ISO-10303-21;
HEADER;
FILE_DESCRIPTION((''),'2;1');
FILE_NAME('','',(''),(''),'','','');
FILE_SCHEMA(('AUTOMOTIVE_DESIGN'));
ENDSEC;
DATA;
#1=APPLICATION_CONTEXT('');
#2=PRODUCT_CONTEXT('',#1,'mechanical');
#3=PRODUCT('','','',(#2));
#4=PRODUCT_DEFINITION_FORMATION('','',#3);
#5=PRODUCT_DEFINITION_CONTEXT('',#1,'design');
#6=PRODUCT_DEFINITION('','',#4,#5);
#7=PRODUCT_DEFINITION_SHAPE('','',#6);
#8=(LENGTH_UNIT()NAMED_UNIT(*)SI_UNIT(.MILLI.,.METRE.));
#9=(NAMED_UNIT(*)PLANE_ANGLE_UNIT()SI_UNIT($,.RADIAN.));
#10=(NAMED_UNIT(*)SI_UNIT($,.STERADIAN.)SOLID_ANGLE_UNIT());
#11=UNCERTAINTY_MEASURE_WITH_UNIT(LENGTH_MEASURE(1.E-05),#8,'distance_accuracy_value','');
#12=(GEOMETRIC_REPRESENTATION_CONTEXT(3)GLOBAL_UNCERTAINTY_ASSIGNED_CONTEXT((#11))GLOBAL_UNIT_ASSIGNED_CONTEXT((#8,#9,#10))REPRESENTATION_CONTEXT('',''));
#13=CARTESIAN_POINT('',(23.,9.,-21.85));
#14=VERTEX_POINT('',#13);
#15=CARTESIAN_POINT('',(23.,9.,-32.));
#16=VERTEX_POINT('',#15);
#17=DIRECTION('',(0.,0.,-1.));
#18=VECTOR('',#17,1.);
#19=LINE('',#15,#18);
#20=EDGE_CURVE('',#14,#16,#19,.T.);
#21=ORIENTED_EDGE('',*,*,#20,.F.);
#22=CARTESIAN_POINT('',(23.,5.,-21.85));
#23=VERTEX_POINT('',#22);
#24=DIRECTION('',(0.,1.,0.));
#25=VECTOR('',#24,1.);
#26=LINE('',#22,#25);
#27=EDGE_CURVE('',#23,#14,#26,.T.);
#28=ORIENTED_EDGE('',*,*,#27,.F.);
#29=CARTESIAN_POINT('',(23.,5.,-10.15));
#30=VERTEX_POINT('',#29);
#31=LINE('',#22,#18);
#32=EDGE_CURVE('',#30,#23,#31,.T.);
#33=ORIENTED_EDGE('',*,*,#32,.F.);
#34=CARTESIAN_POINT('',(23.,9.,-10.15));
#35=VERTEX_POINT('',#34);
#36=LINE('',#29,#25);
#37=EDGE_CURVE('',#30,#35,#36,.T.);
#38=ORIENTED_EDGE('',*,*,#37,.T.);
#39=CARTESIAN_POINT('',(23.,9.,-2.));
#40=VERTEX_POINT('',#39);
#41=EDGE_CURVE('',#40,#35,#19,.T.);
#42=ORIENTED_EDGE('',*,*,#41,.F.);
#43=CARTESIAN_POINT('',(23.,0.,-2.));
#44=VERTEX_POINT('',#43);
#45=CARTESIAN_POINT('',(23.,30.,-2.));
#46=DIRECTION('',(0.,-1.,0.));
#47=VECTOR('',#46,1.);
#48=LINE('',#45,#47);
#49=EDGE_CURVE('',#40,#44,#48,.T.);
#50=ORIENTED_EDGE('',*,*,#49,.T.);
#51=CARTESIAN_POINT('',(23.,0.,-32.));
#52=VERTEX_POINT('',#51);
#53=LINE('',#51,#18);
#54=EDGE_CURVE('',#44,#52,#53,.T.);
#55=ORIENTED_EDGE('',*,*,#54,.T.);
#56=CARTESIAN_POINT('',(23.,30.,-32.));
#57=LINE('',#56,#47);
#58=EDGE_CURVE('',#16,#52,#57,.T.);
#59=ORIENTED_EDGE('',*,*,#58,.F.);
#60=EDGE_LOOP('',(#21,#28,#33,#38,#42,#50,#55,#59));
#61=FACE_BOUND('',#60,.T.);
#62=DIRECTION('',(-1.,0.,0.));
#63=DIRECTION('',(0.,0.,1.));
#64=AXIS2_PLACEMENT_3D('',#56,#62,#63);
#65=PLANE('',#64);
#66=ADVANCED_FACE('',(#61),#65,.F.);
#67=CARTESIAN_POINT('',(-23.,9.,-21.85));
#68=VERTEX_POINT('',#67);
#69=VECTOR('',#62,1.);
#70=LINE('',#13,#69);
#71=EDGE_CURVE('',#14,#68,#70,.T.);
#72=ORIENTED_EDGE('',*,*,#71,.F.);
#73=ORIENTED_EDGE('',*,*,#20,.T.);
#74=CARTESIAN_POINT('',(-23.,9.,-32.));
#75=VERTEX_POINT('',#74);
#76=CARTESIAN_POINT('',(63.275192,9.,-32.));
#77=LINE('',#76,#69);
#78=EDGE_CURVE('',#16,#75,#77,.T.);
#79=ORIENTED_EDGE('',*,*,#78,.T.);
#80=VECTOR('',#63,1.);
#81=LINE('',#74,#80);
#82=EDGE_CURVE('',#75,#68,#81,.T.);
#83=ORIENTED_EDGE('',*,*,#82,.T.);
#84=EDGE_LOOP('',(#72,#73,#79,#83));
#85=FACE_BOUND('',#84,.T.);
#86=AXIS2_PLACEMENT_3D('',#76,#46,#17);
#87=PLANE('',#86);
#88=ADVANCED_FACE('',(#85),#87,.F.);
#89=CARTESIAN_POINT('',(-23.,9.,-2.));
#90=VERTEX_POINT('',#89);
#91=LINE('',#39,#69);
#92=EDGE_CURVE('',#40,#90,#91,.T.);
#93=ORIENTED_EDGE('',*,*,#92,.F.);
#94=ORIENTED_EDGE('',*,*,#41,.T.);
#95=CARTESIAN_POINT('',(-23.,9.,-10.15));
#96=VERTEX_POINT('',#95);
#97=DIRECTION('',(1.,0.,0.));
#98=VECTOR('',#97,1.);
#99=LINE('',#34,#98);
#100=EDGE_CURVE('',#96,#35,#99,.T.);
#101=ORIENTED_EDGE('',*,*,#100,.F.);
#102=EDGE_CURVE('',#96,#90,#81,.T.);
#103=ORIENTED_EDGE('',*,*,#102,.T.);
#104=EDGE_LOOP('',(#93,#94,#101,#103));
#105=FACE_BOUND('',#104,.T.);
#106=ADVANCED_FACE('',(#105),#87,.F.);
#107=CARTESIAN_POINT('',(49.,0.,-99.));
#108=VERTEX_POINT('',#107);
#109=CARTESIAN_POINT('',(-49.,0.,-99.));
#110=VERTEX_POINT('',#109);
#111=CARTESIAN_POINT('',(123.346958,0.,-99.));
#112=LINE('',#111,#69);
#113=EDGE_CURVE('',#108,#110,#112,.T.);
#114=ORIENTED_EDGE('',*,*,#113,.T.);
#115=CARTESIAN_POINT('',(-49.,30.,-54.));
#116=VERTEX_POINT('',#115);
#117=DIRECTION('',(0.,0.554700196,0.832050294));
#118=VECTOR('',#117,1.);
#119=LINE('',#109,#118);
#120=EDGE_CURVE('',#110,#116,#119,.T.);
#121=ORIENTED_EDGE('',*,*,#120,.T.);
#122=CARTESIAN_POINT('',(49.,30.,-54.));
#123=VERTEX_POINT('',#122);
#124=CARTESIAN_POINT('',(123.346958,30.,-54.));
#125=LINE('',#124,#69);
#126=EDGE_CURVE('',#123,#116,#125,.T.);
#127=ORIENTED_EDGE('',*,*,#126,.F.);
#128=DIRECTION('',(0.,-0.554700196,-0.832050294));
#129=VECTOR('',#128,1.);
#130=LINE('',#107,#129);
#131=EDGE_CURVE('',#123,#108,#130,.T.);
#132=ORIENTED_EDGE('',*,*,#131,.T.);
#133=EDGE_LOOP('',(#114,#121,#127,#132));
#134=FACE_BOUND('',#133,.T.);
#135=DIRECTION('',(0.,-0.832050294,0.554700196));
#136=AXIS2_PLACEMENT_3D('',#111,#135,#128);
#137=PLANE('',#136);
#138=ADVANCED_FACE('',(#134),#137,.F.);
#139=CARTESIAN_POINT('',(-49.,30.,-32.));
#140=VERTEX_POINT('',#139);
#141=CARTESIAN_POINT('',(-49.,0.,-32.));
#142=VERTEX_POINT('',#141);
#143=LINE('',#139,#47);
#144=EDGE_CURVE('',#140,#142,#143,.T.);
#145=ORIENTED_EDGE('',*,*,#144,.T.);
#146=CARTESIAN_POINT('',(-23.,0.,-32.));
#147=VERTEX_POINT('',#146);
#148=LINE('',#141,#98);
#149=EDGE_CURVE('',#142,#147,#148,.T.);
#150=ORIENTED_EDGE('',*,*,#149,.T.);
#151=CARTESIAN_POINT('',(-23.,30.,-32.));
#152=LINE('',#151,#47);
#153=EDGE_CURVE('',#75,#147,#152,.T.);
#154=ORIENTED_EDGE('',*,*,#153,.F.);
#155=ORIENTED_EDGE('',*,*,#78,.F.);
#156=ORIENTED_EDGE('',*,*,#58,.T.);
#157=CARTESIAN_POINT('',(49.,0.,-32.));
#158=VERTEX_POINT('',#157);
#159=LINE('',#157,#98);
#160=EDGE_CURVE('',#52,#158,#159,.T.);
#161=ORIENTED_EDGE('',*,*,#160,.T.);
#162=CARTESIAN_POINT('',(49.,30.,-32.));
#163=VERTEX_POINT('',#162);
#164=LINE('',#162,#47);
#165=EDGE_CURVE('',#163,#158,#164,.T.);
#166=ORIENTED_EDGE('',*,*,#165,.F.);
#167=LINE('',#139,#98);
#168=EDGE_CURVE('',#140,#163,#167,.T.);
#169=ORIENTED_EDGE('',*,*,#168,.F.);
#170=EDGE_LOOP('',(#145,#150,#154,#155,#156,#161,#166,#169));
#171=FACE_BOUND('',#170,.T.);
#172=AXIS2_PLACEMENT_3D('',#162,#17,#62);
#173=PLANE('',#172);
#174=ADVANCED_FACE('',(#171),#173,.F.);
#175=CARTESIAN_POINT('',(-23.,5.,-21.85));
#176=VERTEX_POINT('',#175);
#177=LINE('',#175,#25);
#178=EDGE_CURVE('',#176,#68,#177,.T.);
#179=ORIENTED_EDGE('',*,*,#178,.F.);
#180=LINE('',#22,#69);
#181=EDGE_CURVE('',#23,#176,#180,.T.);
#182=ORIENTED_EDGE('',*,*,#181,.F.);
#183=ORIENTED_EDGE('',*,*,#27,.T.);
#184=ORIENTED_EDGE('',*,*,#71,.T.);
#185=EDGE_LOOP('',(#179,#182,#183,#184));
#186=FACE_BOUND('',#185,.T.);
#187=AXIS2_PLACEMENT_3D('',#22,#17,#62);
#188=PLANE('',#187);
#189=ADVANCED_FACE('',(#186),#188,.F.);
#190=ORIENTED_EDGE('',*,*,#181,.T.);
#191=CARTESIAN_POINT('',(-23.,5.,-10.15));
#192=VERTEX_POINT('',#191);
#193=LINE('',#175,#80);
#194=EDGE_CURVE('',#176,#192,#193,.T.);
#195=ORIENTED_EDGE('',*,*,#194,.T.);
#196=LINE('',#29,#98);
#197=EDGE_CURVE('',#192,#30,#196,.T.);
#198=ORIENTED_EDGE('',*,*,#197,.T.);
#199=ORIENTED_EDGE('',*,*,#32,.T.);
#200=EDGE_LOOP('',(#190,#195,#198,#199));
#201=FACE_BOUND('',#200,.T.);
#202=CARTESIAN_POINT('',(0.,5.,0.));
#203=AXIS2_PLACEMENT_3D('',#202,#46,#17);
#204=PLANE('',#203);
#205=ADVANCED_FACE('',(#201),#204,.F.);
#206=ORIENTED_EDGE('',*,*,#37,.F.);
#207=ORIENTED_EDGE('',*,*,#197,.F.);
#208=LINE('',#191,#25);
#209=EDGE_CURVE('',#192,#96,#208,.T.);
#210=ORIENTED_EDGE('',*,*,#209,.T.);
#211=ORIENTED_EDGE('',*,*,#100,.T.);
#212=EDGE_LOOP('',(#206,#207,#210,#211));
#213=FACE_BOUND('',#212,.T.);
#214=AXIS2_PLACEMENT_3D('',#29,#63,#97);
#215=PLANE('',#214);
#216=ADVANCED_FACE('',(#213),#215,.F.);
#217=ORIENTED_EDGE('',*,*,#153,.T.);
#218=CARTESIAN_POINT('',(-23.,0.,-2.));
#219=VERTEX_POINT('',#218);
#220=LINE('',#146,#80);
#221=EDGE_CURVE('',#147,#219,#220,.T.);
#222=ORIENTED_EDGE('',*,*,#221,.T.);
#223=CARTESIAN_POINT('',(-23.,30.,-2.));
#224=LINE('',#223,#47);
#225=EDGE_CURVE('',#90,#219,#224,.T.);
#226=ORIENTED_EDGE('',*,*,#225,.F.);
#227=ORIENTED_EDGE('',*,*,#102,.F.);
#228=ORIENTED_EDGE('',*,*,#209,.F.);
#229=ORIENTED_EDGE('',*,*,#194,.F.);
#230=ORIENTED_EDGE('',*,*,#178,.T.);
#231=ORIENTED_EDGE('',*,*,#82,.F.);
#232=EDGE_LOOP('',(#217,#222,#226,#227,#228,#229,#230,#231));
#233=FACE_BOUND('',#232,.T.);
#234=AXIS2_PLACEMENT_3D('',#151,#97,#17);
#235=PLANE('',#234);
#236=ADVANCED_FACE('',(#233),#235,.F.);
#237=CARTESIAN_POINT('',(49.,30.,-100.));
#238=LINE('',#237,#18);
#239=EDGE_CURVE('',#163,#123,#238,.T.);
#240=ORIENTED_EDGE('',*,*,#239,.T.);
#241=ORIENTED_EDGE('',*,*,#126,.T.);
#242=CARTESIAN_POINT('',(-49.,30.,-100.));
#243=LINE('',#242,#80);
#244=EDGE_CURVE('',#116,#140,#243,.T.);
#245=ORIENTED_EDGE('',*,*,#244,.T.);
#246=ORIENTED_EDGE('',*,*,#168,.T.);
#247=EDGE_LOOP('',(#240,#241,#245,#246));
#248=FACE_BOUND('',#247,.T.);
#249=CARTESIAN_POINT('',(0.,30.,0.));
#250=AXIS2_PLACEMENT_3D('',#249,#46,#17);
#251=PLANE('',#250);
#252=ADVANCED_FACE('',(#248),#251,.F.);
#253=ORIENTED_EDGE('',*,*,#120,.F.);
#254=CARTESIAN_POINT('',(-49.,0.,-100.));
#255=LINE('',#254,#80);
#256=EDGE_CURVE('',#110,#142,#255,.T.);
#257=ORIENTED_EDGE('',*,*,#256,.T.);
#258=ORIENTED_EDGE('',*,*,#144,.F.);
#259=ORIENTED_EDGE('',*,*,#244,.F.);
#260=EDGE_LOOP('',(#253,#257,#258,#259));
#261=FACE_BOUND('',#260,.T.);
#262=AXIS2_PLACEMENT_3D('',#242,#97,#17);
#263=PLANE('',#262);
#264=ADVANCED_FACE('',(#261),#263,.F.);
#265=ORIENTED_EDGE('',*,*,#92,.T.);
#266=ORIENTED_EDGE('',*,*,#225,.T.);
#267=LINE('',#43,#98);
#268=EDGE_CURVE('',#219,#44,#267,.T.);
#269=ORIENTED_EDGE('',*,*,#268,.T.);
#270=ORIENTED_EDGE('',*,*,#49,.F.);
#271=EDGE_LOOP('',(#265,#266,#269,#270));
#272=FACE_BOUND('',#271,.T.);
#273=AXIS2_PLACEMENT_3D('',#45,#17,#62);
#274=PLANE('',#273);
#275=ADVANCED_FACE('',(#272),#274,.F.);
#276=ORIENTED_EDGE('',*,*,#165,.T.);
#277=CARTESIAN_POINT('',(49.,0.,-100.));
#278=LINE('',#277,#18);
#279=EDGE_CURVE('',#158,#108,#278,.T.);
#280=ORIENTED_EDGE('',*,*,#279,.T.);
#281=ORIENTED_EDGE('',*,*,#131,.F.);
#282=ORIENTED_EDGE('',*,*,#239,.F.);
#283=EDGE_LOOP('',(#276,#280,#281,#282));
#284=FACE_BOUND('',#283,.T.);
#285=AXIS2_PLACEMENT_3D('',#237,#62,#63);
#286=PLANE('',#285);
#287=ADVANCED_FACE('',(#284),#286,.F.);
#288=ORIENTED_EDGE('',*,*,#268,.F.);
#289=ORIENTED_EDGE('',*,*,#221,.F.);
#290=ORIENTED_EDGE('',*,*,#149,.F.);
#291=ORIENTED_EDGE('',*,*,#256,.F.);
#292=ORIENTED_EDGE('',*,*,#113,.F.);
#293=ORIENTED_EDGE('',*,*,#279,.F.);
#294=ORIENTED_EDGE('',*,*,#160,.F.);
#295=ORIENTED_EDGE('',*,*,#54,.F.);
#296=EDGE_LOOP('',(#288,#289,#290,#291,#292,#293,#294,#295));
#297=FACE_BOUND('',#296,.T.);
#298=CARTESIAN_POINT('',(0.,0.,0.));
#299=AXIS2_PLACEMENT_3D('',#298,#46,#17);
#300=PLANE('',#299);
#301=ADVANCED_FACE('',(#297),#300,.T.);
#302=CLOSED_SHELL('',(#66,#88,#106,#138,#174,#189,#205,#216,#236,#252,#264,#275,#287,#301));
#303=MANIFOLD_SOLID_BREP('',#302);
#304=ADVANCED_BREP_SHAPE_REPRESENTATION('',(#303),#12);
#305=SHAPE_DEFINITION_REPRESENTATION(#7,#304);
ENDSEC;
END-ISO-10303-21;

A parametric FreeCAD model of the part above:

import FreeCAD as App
import Part
import Sketcher

doc = App.newDocument("Part")
params = doc.addObject("Spreadsheet::Sheet", "Params")
for row, (alias, value) in enumerate([
    ("sketch1_width", "98 mm"),
    ("sketch1_width2", "26 mm"),
    ("sketch1_height", "68 mm"),
    ("sketch1_height2", "30 mm"),
    ("pad1_length", "30 mm"),
    ("pocket1_length", "98 mm"),
    ("sketch3_width", "46 mm"),
    ("sketch3_height", "11.7 mm"),
    ("pocket2_length", "25 mm"),
    ("pocket3_length", "46 mm"),
], start=1):
    params.set(f"A{row}", alias)
    params.set(f"B{row}", "=" + value)
    params.setAlias(f"B{row}", alias)

body = doc.addObject("PartDesign::Body", "Body")

# Sketch on XZ plane
sketch1 = body.newObject("Sketcher::SketchObject", "Sketch")
sketch1.AttachmentSupport = (doc.getObject("XZ_Plane"), [""])
sketch1.MapMode = "FlatFace"
sketch1.addGeometry(Part.LineSegment(App.Vector(49, -100, 0), App.Vector(-49, -100, 0)), False)
sketch1.addGeometry(Part.LineSegment(App.Vector(-49, -100, 0), App.Vector(-49, -32, 0)), False)
sketch1.addGeometry(Part.LineSegment(App.Vector(-49, -32, 0), App.Vector(-23, -32, 0)), False)
sketch1.addGeometry(Part.LineSegment(App.Vector(-23, -32, 0), App.Vector(-23, -2, 0)), False)
sketch1.addGeometry(Part.LineSegment(App.Vector(-23, -2, 0), App.Vector(23, -2, 0)), False)
sketch1.addGeometry(Part.LineSegment(App.Vector(23, -2, 0), App.Vector(23, -32, 0)), False)
sketch1.addGeometry(Part.LineSegment(App.Vector(23, -32, 0), App.Vector(49, -32, 0)), False)
sketch1.addGeometry(Part.LineSegment(App.Vector(49, -32, 0), App.Vector(49, -100, 0)), False)
sketch1.addConstraint(Sketcher.Constraint("Coincident", 0, 2, 1, 1))
sketch1.addConstraint(Sketcher.Constraint("Coincident", 1, 2, 2, 1))
sketch1.addConstraint(Sketcher.Constraint("Coincident", 2, 2, 3, 1))
sketch1.addConstraint(Sketcher.Constraint("Coincident", 3, 2, 4, 1))
sketch1.addConstraint(Sketcher.Constraint("Coincident", 4, 2, 5, 1))
sketch1.addConstraint(Sketcher.Constraint("Coincident", 5, 2, 6, 1))
sketch1.addConstraint(Sketcher.Constraint("Coincident", 6, 2, 7, 1))
sketch1.addConstraint(Sketcher.Constraint("Coincident", 7, 2, 0, 1))
sketch1.addConstraint(Sketcher.Constraint("Horizontal", 0))
sketch1.addConstraint(Sketcher.Constraint("Vertical", 1))
sketch1.addConstraint(Sketcher.Constraint("Horizontal", 2))
sketch1.addConstraint(Sketcher.Constraint("Vertical", 3))
sketch1.addConstraint(Sketcher.Constraint("Horizontal", 4))
sketch1.addConstraint(Sketcher.Constraint("Vertical", 5))
sketch1.addConstraint(Sketcher.Constraint("Horizontal", 6))
sketch1.addConstraint(Sketcher.Constraint("Vertical", 7))
sketch1.addConstraint(Sketcher.Constraint("Symmetric", 2, 2, 5, 2, -2))
sketch1.addConstraint(Sketcher.Constraint("Equal", 2, 6))
sketch1.addConstraint(Sketcher.Constraint("DistanceX", 0, 2, 0, 1, 98.0))
sketch1.addConstraint(Sketcher.Constraint("DistanceX", 2, 1, 2, 2, 26.0))
sketch1.addConstraint(Sketcher.Constraint("DistanceY", 1, 1, 1, 2, 68.0))
sketch1.addConstraint(Sketcher.Constraint("DistanceY", 3, 1, 3, 2, 30.0))
sketch1.addConstraint(Sketcher.Constraint("DistanceY", 0, 2, -1, 1, 100.0))
sketch1.setExpression("Constraints[18]", "Params.sketch1_width")
sketch1.setExpression("Constraints[19]", "Params.sketch1_width2")
sketch1.setExpression("Constraints[20]", "Params.sketch1_height")
sketch1.setExpression("Constraints[21]", "Params.sketch1_height2")
pad1 = body.newObject("PartDesign::Pad", "Pad")
pad1.Profile = sketch1
pad1.setExpression("Length", "Params.pad1_length")
pad1.Reversed = True

# Sketch on YZ plane
sketch2 = body.newObject("Sketcher::SketchObject", "Sketch001")
sketch2.AttachmentSupport = (doc.getObject("YZ_Plane"), [""])
sketch2.MapMode = "FlatFace"
sketch2.AttachmentOffset = App.Placement(App.Vector(0, 0, -49), App.Rotation())
sketch2.addGeometry(Part.LineSegment(App.Vector(0, -99, 0), App.Vector(30, -54, 0)), False)
sketch2.addGeometry(Part.LineSegment(App.Vector(30, -54, 0), App.Vector(45, -54, 0)), False)
sketch2.addGeometry(Part.LineSegment(App.Vector(45, -54, 0), App.Vector(45, -113, 0)), False)
sketch2.addGeometry(Part.LineSegment(App.Vector(45, -113, 0), App.Vector(0, -113, 0)), False)
sketch2.addGeometry(Part.LineSegment(App.Vector(0, -113, 0), App.Vector(0, -99, 0)), False)
sketch2.addConstraint(Sketcher.Constraint("Coincident", 0, 2, 1, 1))
sketch2.addConstraint(Sketcher.Constraint("Coincident", 1, 2, 2, 1))
sketch2.addConstraint(Sketcher.Constraint("Coincident", 2, 2, 3, 1))
sketch2.addConstraint(Sketcher.Constraint("Coincident", 3, 2, 4, 1))
sketch2.addConstraint(Sketcher.Constraint("Coincident", 4, 2, 0, 1))
sketch2.addConstraint(Sketcher.Constraint("Horizontal", 1))
sketch2.addConstraint(Sketcher.Constraint("Vertical", 2))
sketch2.addConstraint(Sketcher.Constraint("Horizontal", 3))
sketch2.addConstraint(Sketcher.Constraint("Vertical", 4))
sketch2.addConstraint(Sketcher.Constraint("PointOnObject", 3, 2, -2))
sketch2.addConstraint(Sketcher.Constraint("DistanceX", -1, 1, 0, 2, 30.0))
sketch2.addConstraint(Sketcher.Constraint("DistanceY", 0, 2, -1, 1, 54.0))
sketch2.addConstraint(Sketcher.Constraint("DistanceY", 4, 2, -1, 1, 99.0))
sketch2.addConstraint(Sketcher.Constraint("DistanceX", 1, 1, 1, 2, 14.902795))
sketch2.addConstraint(Sketcher.Constraint("DistanceY", 2, 2, 2, 1, 59.255457))
pocket1 = body.newObject("PartDesign::Pocket", "Pocket")
pocket1.Profile = sketch2
pocket1.setExpression("Length", "Params.pocket1_length")
pocket1.Reversed = True

# Sketch on XZ plane
sketch3 = body.newObject("Sketcher::SketchObject", "Sketch002")
sketch3.AttachmentSupport = (doc.getObject("XZ_Plane"), [""])
sketch3.MapMode = "FlatFace"
sketch3.AttachmentOffset = App.Placement(App.Vector(0, 0, -30), App.Rotation())
sketch3.addGeometry(Part.LineSegment(App.Vector(-23, -22, 0), App.Vector(-23, -10, 0)), False)
sketch3.addGeometry(Part.LineSegment(App.Vector(-23, -10, 0), App.Vector(23, -10, 0)), False)
sketch3.addGeometry(Part.LineSegment(App.Vector(23, -10, 0), App.Vector(23, -22, 0)), False)
sketch3.addGeometry(Part.LineSegment(App.Vector(23, -22, 0), App.Vector(-23, -22, 0)), False)
sketch3.addConstraint(Sketcher.Constraint("Coincident", 0, 2, 1, 1))
sketch3.addConstraint(Sketcher.Constraint("Coincident", 1, 2, 2, 1))
sketch3.addConstraint(Sketcher.Constraint("Coincident", 2, 2, 3, 1))
sketch3.addConstraint(Sketcher.Constraint("Coincident", 3, 2, 0, 1))
sketch3.addConstraint(Sketcher.Constraint("Vertical", 0))
sketch3.addConstraint(Sketcher.Constraint("Horizontal", 1))
sketch3.addConstraint(Sketcher.Constraint("Vertical", 2))
sketch3.addConstraint(Sketcher.Constraint("Horizontal", 3))
sketch3.addConstraint(Sketcher.Constraint("DistanceX", 1, 1, 1, 2, 46.0))
sketch3.addConstraint(Sketcher.Constraint("DistanceY", 0, 1, 0, 2, 11.7))
sketch3.addConstraint(Sketcher.Constraint("DistanceX", 0, 2, -1, 1, 23.0))
sketch3.addConstraint(Sketcher.Constraint("DistanceY", 0, 2, -1, 1, 10.15))
sketch3.setExpression("Constraints[8]", "Params.sketch3_width")
sketch3.setExpression("Constraints[9]", "Params.sketch3_height")
pocket2 = body.newObject("PartDesign::Pocket", "Pocket001")
pocket2.Profile = sketch3
pocket2.setExpression("Length", "Params.pocket2_length")
pocket2.Reversed = True

# Sketch on YZ plane
sketch4 = body.newObject("Sketcher::SketchObject", "Sketch003")
sketch4.AttachmentSupport = (doc.getObject("YZ_Plane"), [""])
sketch4.MapMode = "FlatFace"
sketch4.AttachmentOffset = App.Placement(App.Vector(0, 0, -23), App.Rotation())
sketch4.addGeometry(Part.LineSegment(App.Vector(32, -32, 0), App.Vector(9, -32, 0)), False)
sketch4.addGeometry(Part.LineSegment(App.Vector(9, -32, 0), App.Vector(9, 1, 0)), False)
sketch4.addGeometry(Part.LineSegment(App.Vector(9, 1, 0), App.Vector(32, 1, 0)), False)
sketch4.addGeometry(Part.LineSegment(App.Vector(32, 1, 0), App.Vector(32, -32, 0)), False)
sketch4.addConstraint(Sketcher.Constraint("Coincident", 0, 2, 1, 1))
sketch4.addConstraint(Sketcher.Constraint("Coincident", 1, 2, 2, 1))
sketch4.addConstraint(Sketcher.Constraint("Coincident", 2, 2, 3, 1))
sketch4.addConstraint(Sketcher.Constraint("Coincident", 3, 2, 0, 1))
sketch4.addConstraint(Sketcher.Constraint("Horizontal", 0))
sketch4.addConstraint(Sketcher.Constraint("Vertical", 1))
sketch4.addConstraint(Sketcher.Constraint("Horizontal", 2))
sketch4.addConstraint(Sketcher.Constraint("Vertical", 3))
sketch4.addConstraint(Sketcher.Constraint("DistanceX", -1, 1, 0, 2, 9.0))
sketch4.addConstraint(Sketcher.Constraint("DistanceY", 0, 2, -1, 1, 32.0))
sketch4.addConstraint(Sketcher.Constraint("DistanceX", 0, 2, 0, 1, 22.974752))
sketch4.addConstraint(Sketcher.Constraint("DistanceY", 1, 1, 1, 2, 33.079478))
pocket3 = body.newObject("PartDesign::Pocket", "Pocket002")
pocket3.Profile = sketch4
pocket3.setExpression("Length", "Params.pocket3_length")
pocket3.Reversed = True

doc.recompute()
